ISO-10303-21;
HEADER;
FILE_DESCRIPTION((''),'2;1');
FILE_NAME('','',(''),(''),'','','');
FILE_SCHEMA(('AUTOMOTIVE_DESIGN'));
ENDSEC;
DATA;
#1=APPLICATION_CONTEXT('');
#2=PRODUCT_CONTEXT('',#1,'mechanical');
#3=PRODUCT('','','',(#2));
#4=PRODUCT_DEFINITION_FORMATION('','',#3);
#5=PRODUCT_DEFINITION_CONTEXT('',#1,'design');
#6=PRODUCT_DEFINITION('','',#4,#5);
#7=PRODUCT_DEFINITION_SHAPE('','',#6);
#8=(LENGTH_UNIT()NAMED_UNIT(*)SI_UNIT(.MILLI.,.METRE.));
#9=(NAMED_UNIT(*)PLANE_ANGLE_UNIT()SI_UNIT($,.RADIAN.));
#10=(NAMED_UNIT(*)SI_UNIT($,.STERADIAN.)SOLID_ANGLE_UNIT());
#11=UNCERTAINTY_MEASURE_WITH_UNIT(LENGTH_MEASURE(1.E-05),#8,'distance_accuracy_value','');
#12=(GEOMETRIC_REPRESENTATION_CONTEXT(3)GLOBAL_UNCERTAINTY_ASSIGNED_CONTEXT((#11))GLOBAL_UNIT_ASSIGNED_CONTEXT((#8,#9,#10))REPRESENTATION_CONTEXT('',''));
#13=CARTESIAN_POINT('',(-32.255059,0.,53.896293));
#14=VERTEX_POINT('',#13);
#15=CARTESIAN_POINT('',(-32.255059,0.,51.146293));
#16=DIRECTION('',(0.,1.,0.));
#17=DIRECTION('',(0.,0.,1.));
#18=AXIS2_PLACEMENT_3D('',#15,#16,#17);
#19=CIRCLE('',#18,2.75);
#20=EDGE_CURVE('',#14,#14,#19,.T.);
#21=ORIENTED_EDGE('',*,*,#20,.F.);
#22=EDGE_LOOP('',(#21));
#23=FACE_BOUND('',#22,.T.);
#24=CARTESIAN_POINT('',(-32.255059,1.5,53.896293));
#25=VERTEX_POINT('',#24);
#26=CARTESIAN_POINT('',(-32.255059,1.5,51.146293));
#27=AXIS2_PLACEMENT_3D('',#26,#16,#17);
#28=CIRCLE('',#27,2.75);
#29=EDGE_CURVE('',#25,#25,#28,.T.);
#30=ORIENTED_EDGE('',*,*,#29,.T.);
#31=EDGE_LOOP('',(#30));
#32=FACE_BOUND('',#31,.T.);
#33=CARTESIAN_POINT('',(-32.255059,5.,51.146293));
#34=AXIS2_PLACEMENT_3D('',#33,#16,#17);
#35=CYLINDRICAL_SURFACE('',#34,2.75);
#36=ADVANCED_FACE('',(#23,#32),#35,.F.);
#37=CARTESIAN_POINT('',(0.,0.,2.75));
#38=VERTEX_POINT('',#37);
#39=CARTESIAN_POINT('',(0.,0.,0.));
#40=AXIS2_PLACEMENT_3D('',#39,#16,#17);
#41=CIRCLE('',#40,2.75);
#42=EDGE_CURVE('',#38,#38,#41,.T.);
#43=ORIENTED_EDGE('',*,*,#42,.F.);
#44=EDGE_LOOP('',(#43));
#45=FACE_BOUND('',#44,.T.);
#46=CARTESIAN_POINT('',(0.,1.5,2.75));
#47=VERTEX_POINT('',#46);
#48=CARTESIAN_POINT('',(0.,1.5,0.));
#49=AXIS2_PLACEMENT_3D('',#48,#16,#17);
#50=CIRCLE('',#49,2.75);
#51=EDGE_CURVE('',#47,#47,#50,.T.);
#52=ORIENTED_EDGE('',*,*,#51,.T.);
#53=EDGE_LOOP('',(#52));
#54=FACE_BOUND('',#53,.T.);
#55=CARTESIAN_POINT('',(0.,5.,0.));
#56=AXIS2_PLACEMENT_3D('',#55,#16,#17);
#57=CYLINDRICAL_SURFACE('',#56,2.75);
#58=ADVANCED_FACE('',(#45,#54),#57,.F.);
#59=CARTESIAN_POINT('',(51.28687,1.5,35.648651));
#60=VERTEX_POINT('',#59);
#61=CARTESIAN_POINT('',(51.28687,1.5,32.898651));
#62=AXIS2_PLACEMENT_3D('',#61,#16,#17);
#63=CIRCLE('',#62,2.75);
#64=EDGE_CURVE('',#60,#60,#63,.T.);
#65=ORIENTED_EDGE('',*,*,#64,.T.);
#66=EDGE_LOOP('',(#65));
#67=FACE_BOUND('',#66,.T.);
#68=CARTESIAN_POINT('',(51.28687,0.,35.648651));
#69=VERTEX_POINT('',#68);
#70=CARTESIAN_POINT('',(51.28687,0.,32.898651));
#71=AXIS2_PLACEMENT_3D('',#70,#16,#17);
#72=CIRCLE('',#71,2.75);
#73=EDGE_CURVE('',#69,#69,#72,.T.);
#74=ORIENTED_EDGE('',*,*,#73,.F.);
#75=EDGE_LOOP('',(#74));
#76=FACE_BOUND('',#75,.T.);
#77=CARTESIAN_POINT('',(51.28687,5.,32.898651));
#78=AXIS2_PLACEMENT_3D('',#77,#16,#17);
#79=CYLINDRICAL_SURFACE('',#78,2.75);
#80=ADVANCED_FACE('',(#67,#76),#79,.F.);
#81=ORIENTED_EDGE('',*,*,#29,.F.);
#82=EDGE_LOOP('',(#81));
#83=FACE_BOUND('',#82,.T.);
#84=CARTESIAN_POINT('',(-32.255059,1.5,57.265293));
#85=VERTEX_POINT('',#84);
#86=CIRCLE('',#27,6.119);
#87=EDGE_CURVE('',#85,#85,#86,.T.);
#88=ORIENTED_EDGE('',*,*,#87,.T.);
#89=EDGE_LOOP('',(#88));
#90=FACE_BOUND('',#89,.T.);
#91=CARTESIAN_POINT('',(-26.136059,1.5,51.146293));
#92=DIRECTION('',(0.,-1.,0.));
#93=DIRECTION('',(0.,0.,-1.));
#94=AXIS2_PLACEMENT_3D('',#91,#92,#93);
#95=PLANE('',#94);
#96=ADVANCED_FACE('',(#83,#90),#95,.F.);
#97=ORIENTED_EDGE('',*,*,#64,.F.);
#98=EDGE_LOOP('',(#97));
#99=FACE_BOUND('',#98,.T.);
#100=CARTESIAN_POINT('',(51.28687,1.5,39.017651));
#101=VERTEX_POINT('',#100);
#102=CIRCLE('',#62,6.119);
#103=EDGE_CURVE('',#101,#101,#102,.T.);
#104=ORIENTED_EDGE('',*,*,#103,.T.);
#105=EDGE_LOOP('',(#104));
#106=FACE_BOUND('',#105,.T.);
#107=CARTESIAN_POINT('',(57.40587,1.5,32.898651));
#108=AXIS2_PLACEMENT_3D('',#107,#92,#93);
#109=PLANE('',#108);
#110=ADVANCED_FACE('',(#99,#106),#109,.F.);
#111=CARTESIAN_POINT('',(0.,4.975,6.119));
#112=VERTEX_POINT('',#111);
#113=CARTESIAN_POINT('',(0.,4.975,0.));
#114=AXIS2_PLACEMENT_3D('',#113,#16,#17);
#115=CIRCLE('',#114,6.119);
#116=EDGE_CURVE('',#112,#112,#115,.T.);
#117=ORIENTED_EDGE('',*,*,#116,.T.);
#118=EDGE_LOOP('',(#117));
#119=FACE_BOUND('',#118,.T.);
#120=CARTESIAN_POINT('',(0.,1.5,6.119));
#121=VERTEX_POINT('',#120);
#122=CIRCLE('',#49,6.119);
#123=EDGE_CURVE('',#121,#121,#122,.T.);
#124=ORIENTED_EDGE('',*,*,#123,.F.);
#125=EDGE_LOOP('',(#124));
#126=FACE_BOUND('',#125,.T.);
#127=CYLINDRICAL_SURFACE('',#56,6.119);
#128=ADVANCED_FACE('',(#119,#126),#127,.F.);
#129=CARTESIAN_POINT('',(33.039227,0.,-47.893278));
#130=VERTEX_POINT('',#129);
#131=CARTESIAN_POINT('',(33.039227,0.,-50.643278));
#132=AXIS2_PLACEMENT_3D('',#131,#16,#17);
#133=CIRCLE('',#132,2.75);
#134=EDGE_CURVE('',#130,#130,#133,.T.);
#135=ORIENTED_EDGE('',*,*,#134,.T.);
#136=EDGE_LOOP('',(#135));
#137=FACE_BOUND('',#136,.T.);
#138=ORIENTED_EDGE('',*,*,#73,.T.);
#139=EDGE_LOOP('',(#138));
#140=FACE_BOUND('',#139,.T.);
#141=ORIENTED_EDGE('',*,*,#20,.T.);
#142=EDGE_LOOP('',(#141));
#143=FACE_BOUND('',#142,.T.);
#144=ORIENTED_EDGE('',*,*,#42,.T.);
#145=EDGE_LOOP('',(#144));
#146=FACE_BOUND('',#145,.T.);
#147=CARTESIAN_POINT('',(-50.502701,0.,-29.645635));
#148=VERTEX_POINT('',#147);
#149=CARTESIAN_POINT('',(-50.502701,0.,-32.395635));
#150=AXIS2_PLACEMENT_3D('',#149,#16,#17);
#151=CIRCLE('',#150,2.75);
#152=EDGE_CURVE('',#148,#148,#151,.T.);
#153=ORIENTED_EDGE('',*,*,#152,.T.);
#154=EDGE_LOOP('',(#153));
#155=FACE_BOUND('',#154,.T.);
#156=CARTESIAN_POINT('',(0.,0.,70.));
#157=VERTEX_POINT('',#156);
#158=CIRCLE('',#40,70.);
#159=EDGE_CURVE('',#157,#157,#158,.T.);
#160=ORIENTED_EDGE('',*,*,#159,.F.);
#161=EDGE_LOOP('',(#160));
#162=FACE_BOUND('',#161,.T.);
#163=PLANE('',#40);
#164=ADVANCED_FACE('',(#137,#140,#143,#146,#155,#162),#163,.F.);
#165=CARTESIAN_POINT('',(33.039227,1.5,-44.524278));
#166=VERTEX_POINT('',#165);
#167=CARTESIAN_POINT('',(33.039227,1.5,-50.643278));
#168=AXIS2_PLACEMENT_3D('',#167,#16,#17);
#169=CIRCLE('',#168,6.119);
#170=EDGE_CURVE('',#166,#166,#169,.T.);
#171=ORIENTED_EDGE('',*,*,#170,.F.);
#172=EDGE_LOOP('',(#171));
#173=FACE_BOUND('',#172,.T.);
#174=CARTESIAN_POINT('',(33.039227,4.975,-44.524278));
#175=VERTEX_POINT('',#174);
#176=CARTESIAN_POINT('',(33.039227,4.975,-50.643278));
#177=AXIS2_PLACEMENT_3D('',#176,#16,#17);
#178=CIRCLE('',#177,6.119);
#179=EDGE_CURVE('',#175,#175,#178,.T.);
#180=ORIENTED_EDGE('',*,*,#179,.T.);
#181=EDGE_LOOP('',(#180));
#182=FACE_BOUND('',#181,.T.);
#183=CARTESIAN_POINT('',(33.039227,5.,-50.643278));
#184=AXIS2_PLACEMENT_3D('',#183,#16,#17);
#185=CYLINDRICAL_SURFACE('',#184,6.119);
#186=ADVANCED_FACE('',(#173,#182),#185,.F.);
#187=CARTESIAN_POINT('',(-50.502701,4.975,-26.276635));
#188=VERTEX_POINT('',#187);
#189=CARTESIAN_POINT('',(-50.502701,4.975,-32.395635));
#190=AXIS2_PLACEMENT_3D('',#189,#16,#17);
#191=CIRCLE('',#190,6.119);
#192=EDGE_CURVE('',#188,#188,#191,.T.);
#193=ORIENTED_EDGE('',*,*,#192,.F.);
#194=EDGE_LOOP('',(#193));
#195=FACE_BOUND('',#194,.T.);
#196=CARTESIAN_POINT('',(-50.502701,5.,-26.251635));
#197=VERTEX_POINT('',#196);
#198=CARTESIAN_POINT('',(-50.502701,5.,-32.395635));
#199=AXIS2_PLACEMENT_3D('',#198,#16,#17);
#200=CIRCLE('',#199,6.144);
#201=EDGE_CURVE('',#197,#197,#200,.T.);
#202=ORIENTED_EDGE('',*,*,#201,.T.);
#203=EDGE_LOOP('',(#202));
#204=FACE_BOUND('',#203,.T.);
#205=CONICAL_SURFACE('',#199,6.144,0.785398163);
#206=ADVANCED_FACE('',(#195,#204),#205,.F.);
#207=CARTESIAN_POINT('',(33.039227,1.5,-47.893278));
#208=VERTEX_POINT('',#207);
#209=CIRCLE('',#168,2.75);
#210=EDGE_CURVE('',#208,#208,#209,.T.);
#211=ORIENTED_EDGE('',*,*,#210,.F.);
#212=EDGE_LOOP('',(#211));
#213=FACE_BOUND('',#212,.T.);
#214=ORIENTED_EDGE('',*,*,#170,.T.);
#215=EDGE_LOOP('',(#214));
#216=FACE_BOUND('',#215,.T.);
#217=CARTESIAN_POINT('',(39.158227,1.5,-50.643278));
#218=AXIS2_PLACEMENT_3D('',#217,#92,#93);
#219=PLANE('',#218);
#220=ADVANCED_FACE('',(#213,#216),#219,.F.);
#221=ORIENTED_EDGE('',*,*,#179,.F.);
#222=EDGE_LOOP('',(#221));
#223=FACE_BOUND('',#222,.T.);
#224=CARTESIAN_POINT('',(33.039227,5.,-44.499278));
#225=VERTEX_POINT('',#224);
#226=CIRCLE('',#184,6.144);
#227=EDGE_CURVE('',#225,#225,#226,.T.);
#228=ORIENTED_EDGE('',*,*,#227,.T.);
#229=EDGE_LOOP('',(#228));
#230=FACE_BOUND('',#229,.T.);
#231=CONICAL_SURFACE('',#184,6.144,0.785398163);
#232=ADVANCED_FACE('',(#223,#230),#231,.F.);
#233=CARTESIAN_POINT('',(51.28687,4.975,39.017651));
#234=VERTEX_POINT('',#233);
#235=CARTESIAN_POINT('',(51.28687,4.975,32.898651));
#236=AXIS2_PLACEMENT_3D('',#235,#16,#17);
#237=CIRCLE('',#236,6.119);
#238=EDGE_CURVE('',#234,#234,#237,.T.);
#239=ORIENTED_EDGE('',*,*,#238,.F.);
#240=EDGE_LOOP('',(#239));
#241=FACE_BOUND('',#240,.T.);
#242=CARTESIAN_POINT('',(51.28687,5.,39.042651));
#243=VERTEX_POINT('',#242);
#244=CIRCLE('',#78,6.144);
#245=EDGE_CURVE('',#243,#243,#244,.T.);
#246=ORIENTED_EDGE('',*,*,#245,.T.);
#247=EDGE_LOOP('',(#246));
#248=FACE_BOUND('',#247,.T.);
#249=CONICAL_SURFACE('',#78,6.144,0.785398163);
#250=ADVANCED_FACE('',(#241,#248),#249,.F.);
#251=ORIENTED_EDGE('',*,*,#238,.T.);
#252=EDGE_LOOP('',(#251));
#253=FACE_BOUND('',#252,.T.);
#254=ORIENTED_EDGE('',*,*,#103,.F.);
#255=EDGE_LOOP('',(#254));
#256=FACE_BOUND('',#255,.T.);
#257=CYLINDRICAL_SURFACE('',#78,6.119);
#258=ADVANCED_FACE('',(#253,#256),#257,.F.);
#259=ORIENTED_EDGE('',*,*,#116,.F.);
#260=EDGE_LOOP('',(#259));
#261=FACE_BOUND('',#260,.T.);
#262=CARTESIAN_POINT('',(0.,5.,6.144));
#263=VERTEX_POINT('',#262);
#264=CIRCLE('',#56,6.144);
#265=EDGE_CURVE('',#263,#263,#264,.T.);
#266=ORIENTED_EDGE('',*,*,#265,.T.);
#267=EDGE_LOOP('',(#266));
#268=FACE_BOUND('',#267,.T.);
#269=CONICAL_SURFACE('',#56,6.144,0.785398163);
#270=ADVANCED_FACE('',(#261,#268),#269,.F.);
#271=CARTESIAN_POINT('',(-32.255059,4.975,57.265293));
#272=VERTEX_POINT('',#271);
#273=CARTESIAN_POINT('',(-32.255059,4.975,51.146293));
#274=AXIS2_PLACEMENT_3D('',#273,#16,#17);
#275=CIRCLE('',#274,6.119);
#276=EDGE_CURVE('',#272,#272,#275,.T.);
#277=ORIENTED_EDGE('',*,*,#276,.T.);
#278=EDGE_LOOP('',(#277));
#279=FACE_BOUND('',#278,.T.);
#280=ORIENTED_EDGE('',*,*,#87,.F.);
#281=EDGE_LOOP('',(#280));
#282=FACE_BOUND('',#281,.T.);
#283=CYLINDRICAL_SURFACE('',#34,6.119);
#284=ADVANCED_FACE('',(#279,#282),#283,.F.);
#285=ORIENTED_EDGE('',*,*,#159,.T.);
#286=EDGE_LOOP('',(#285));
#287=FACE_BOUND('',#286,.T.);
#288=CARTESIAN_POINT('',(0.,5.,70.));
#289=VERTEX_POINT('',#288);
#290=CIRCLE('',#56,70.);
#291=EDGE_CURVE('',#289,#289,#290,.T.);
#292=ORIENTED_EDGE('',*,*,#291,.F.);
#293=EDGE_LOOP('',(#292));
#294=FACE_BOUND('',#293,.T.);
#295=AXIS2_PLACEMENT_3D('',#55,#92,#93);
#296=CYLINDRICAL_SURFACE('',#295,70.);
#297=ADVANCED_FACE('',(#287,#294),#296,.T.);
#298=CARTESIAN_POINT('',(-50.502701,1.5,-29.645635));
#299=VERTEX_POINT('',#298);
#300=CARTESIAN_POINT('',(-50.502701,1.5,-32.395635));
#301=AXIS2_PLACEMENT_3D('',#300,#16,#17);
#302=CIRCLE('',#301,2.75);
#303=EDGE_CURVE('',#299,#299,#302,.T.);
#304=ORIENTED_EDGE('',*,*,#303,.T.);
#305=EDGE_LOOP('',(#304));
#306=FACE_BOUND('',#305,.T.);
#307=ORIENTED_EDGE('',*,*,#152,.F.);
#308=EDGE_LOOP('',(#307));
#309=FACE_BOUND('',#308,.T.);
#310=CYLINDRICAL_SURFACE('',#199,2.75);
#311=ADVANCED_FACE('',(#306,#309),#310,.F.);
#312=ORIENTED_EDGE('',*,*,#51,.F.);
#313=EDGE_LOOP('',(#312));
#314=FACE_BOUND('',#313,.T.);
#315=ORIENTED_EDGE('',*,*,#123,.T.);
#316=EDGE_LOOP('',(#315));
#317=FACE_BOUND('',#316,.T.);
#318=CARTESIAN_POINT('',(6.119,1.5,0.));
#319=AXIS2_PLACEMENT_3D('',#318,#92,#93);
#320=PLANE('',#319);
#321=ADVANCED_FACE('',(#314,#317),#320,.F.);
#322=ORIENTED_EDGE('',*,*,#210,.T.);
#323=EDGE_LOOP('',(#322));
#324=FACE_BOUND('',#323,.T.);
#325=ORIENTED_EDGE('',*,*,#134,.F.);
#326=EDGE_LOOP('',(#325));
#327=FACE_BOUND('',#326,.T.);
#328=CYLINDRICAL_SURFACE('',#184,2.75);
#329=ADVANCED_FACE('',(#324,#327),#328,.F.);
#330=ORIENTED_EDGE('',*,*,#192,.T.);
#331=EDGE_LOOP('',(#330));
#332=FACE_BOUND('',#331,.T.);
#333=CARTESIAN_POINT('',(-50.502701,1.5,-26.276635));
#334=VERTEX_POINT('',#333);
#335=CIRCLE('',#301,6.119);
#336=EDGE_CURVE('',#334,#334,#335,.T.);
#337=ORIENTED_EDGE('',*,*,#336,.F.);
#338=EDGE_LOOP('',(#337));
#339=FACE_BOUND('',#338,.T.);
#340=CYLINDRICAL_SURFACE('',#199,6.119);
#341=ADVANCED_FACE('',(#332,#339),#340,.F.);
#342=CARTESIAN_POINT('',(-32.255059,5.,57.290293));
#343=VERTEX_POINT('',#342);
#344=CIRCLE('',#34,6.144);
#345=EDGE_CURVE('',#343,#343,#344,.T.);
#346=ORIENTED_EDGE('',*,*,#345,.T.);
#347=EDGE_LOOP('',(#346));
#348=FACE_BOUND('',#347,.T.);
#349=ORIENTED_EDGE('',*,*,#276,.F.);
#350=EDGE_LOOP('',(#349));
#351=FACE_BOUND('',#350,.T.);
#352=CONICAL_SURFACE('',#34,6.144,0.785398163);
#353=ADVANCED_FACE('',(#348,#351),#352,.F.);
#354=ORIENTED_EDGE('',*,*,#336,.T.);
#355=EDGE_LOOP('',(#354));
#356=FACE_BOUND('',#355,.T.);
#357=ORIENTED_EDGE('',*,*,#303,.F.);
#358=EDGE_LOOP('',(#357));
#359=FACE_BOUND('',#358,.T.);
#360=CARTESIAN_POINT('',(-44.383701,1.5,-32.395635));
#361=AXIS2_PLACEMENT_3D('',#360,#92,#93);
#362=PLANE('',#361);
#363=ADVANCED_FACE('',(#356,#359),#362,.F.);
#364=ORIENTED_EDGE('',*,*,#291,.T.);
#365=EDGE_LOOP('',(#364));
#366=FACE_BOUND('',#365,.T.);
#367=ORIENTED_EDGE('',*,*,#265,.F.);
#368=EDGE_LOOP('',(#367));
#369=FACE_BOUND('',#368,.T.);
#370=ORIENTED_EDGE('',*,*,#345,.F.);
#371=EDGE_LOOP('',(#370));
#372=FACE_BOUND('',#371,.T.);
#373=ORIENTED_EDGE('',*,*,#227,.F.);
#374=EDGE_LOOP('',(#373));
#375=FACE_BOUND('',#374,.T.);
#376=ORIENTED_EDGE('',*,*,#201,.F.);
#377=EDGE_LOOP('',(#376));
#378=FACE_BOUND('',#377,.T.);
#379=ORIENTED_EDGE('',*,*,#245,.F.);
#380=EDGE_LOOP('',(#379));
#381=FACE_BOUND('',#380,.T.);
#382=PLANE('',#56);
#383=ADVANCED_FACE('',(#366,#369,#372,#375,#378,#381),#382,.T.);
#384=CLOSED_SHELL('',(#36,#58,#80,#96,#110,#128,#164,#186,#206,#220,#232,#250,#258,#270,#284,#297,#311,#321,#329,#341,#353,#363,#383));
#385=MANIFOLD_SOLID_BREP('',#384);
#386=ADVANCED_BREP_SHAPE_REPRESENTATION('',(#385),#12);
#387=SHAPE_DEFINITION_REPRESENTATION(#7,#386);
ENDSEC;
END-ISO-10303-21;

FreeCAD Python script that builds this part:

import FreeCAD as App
import Part
import Sketcher
Q = App.Units.Quantity

doc = App.newDocument("Part")
params = doc.addObject("Spreadsheet::Sheet", "Params")
for row, (alias, value) in enumerate([
    ("sketch1_diameter", "140 mm"),
    ("pad1_length", "5 mm"),
    ("sketch2_width", "5 mm"),
    ("sketch2_width2", "1.5 mm"),
    ("sketch2_height", "2.75 mm"),
    ("groove_angle", "360 deg"),
    ("sketch3_width", "5 mm"),
    ("sketch3_width2", "1.5 mm"),
    ("sketch3_height", "2.75 mm"),
    ("groove2_angle", "360 deg"),
], start=1):
    params.set(f"A{row}", alias)
    params.set(f"B{row}", "=" + value)
    params.setAlias(f"B{row}", alias)

body = doc.addObject("PartDesign::Body", "Body")

sketch1 = body.newObject("Sketcher::SketchObject", "Sketch")
sketch1.AttachmentSupport = (doc.getObject("XZ_Plane"), [""])
sketch1.MapMode = "FlatFace"
sketch1.addGeometry(Part.Circle(App.Vector(0, 0, 0), App.Vector(0, 0, 1), 70), False)
sketch1.addConstraint(Sketcher.Constraint("Coincident", 0, 3, -1, 1))
sketch1.addConstraint(Sketcher.Constraint("Diameter", 0, 140.0))
sketch1.setExpression("Constraints[1]", "Params.sketch1_diameter")
pad1 = body.newObject("PartDesign::Pad", "Pad")
pad1.Profile = sketch1
pad1.setExpression("Length", "Params.pad1_length")
pad1.Reversed = True

sketch2 = body.newObject("Sketcher::SketchObject", "Sketch001")
sketch2.AttachmentSupport = (doc.getObject("YZ_Plane"), [""])
sketch2.MapMode = "FlatFace"
sketch2.AttachmentOffset = App.Placement(App.Vector(0, 0, -50.502701), App.Rotation())
sketch2.addGeometry(Part.LineSegment(App.Vector(0, -32.396, 0), App.Vector(5, -32.396, 0)), False)
sketch2.addGeometry(Part.LineSegment(App.Vector(5, -32.396, 0), App.Vector(5, -26.252, 0)), False)
sketch2.addGeometry(Part.LineSegment(App.Vector(5, -26.252, 0), App.Vector(4.975, -26.277, 0)), False)
sketch2.addGeometry(Part.LineSegment(App.Vector(4.975, -26.277, 0), App.Vector(1.5, -26.277, 0)), False)
sketch2.addGeometry(Part.LineSegment(App.Vector(1.5, -26.277, 0), App.Vector(1.5, -29.646, 0)), False)
sketch2.addGeometry(Part.LineSegment(App.Vector(1.5, -29.646, 0), App.Vector(0, -29.646, 0)), False)
sketch2.addGeometry(Part.LineSegment(App.Vector(0, -29.646, 0), App.Vector(0, -32.396, 0)), False)
sketch2.addGeometry(Part.LineSegment(App.Vector(5, -32.396, 0), App.Vector(0, -32.396, 0)), True)
sketch2.addConstraint(Sketcher.Constraint("Coincident", 0, 2, 1, 1))
sketch2.addConstraint(Sketcher.Constraint("Coincident", 1, 2, 2, 1))
sketch2.addConstraint(Sketcher.Constraint("Coincident", 2, 2, 3, 1))
sketch2.addConstraint(Sketcher.Constraint("Coincident", 3, 2, 4, 1))
sketch2.addConstraint(Sketcher.Constraint("Coincident", 4, 2, 5, 1))
sketch2.addConstraint(Sketcher.Constraint("Coincident", 5, 2, 6, 1))
sketch2.addConstraint(Sketcher.Constraint("Coincident", 6, 2, 0, 1))
sketch2.addConstraint(Sketcher.Constraint("Horizontal", 0))
sketch2.addConstraint(Sketcher.Constraint("Vertical", 1))
sketch2.addConstraint(Sketcher.Constraint("Horizontal", 3))
sketch2.addConstraint(Sketcher.Constraint("Vertical", 4))
sketch2.addConstraint(Sketcher.Constraint("Horizontal", 5))
sketch2.addConstraint(Sketcher.Constraint("Vertical", 6))
sketch2.addConstraint(Sketcher.Constraint("Horizontal", 7))
sketch2.addConstraint(Sketcher.Constraint("Coincident", 7, 1, 0, 2))
sketch2.addConstraint(Sketcher.Constraint("PointOnObject", 5, 2, -2))
sketch2.addConstraint(Sketcher.Constraint("PointOnObject", 7, 2, -2))
sketch2.addConstraint(Sketcher.Constraint("DistanceX", 0, 1, 0, 2, 5.0))
sketch2.addConstraint(Sketcher.Constraint("Angle", 2, Q("-135 deg")))
sketch2.addConstraint(Sketcher.Constraint("DistanceX", 5, 2, 5, 1, 1.5))
sketch2.addConstraint(Sketcher.Constraint("DistanceY", 6, 2, 6, 1, 2.75))
sketch2.addConstraint(Sketcher.Constraint("DistanceX", 3, 2, 3, 1, 3.475))
sketch2.addConstraint(Sketcher.Constraint("DistanceY", 1, 1, 1, 2, 6.144))
sketch2.addConstraint(Sketcher.Constraint("DistanceY", 0, 2, -1, 1, 32.395635))
sketch2.setExpression("Constraints[17]", "Params.sketch2_width")
sketch2.setExpression("Constraints[19]", "Params.sketch2_width2")
sketch2.setExpression("Constraints[20]", "Params.sketch2_height")
groove = body.newObject("PartDesign::Groove", "Groove")
groove.Profile = sketch2
groove.ReferenceAxis = (sketch2, ["Axis0"])
groove.setExpression("Angle", "Params.groove_angle")
doc.recompute()

datumline = body.newObject("PartDesign::Line", "DatumLine")
datumline.Placement = App.Placement(App.Vector(0.392084, 0, 0.251508), App.Rotation(App.Vector(0, 0, 1), App.Vector(0, 1, 0)))
polarpattern = body.newObject("PartDesign::PolarPattern", "PolarPattern")
polarpattern.Originals = [groove]
polarpattern.Axis = (datumline, [""])
polarpattern.Angle = 360
polarpattern.Occurrences = 4
body.Tip = polarpattern

sketch3 = body.newObject("Sketcher::SketchObject", "Sketch002")
sketch3.AttachmentSupport = (doc.getObject("YZ_Plane"), [""])
sketch3.MapMode = "FlatFace"
sketch3.addGeometry(Part.LineSegment(App.Vector(0, 0, 0), App.Vector(5, 0, 0)), False)
sketch3.addGeometry(Part.LineSegment(App.Vector(5, 0, 0), App.Vector(5, 6.144, 0)), False)
sketch3.addGeometry(Part.LineSegment(App.Vector(5, 6.144, 0), App.Vector(4.975, 6.119, 0)), False)
sketch3.addGeometry(Part.LineSegment(App.Vector(4.975, 6.119, 0), App.Vector(1.5, 6.119, 0)), False)
sketch3.addGeometry(Part.LineSegment(App.Vector(1.5, 6.119, 0), App.Vector(1.5, 2.75, 0)), False)
sketch3.addGeometry(Part.LineSegment(App.Vector(1.5, 2.75, 0), App.Vector(0, 2.75, 0)), False)
sketch3.addGeometry(Part.LineSegment(App.Vector(0, 2.75, 0), App.Vector(0, 0, 0)), False)
sketch3.addConstraint(Sketcher.Constraint("Coincident", 0, 2, 1, 1))
sketch3.addConstraint(Sketcher.Constraint("Coincident", 1, 2, 2, 1))
sketch3.addConstraint(Sketcher.Constraint("Coincident", 2, 2, 3, 1))
sketch3.addConstraint(Sketcher.Constraint("Coincident", 3, 2, 4, 1))
sketch3.addConstraint(Sketcher.Constraint("Coincident", 4, 2, 5, 1))
sketch3.addConstraint(Sketcher.Constraint("Coincident", 5, 2, 6, 1))
sketch3.addConstraint(Sketcher.Constraint("Coincident", 6, 2, 0, 1))
sketch3.addConstraint(Sketcher.Constraint("Horizontal", 0))
sketch3.addConstraint(Sketcher.Constraint("Vertical", 1))
sketch3.addConstraint(Sketcher.Constraint("Horizontal", 3))
sketch3.addConstraint(Sketcher.Constraint("Vertical", 4))
sketch3.addConstraint(Sketcher.Constraint("Horizontal", 5))
sketch3.addConstraint(Sketcher.Constraint("Vertical", 6))
sketch3.addConstraint(Sketcher.Constraint("Coincident", 6, 2, -1, 1))
sketch3.addConstraint(Sketcher.Constraint("DistanceX", 0, 1, 0, 2, 5.0))
sketch3.addConstraint(Sketcher.Constraint("Angle", 2, Q("-135 deg")))
sketch3.addConstraint(Sketcher.Constraint("DistanceX", 5, 2, 5, 1, 1.5))
sketch3.addConstraint(Sketcher.Constraint("DistanceY", 6, 2, 6, 1, 2.75))
sketch3.addConstraint(Sketcher.Constraint("DistanceX", 3, 2, 3, 1, 3.475))
sketch3.addConstraint(Sketcher.Constraint("DistanceY", 1, 1, 1, 2, 6.144))
sketch3.setExpression("Constraints[14]", "Params.sketch3_width")
sketch3.setExpression("Constraints[16]", "Params.sketch3_width2")
sketch3.setExpression("Constraints[17]", "Params.sketch3_height")
groove2 = body.newObject("PartDesign::Groove", "Groove001")
groove2.Profile = sketch3
groove2.ReferenceAxis = (sketch3, ["H_Axis"])
groove2.setExpression("Angle", "Params.groove2_angle")

doc.recompute()
